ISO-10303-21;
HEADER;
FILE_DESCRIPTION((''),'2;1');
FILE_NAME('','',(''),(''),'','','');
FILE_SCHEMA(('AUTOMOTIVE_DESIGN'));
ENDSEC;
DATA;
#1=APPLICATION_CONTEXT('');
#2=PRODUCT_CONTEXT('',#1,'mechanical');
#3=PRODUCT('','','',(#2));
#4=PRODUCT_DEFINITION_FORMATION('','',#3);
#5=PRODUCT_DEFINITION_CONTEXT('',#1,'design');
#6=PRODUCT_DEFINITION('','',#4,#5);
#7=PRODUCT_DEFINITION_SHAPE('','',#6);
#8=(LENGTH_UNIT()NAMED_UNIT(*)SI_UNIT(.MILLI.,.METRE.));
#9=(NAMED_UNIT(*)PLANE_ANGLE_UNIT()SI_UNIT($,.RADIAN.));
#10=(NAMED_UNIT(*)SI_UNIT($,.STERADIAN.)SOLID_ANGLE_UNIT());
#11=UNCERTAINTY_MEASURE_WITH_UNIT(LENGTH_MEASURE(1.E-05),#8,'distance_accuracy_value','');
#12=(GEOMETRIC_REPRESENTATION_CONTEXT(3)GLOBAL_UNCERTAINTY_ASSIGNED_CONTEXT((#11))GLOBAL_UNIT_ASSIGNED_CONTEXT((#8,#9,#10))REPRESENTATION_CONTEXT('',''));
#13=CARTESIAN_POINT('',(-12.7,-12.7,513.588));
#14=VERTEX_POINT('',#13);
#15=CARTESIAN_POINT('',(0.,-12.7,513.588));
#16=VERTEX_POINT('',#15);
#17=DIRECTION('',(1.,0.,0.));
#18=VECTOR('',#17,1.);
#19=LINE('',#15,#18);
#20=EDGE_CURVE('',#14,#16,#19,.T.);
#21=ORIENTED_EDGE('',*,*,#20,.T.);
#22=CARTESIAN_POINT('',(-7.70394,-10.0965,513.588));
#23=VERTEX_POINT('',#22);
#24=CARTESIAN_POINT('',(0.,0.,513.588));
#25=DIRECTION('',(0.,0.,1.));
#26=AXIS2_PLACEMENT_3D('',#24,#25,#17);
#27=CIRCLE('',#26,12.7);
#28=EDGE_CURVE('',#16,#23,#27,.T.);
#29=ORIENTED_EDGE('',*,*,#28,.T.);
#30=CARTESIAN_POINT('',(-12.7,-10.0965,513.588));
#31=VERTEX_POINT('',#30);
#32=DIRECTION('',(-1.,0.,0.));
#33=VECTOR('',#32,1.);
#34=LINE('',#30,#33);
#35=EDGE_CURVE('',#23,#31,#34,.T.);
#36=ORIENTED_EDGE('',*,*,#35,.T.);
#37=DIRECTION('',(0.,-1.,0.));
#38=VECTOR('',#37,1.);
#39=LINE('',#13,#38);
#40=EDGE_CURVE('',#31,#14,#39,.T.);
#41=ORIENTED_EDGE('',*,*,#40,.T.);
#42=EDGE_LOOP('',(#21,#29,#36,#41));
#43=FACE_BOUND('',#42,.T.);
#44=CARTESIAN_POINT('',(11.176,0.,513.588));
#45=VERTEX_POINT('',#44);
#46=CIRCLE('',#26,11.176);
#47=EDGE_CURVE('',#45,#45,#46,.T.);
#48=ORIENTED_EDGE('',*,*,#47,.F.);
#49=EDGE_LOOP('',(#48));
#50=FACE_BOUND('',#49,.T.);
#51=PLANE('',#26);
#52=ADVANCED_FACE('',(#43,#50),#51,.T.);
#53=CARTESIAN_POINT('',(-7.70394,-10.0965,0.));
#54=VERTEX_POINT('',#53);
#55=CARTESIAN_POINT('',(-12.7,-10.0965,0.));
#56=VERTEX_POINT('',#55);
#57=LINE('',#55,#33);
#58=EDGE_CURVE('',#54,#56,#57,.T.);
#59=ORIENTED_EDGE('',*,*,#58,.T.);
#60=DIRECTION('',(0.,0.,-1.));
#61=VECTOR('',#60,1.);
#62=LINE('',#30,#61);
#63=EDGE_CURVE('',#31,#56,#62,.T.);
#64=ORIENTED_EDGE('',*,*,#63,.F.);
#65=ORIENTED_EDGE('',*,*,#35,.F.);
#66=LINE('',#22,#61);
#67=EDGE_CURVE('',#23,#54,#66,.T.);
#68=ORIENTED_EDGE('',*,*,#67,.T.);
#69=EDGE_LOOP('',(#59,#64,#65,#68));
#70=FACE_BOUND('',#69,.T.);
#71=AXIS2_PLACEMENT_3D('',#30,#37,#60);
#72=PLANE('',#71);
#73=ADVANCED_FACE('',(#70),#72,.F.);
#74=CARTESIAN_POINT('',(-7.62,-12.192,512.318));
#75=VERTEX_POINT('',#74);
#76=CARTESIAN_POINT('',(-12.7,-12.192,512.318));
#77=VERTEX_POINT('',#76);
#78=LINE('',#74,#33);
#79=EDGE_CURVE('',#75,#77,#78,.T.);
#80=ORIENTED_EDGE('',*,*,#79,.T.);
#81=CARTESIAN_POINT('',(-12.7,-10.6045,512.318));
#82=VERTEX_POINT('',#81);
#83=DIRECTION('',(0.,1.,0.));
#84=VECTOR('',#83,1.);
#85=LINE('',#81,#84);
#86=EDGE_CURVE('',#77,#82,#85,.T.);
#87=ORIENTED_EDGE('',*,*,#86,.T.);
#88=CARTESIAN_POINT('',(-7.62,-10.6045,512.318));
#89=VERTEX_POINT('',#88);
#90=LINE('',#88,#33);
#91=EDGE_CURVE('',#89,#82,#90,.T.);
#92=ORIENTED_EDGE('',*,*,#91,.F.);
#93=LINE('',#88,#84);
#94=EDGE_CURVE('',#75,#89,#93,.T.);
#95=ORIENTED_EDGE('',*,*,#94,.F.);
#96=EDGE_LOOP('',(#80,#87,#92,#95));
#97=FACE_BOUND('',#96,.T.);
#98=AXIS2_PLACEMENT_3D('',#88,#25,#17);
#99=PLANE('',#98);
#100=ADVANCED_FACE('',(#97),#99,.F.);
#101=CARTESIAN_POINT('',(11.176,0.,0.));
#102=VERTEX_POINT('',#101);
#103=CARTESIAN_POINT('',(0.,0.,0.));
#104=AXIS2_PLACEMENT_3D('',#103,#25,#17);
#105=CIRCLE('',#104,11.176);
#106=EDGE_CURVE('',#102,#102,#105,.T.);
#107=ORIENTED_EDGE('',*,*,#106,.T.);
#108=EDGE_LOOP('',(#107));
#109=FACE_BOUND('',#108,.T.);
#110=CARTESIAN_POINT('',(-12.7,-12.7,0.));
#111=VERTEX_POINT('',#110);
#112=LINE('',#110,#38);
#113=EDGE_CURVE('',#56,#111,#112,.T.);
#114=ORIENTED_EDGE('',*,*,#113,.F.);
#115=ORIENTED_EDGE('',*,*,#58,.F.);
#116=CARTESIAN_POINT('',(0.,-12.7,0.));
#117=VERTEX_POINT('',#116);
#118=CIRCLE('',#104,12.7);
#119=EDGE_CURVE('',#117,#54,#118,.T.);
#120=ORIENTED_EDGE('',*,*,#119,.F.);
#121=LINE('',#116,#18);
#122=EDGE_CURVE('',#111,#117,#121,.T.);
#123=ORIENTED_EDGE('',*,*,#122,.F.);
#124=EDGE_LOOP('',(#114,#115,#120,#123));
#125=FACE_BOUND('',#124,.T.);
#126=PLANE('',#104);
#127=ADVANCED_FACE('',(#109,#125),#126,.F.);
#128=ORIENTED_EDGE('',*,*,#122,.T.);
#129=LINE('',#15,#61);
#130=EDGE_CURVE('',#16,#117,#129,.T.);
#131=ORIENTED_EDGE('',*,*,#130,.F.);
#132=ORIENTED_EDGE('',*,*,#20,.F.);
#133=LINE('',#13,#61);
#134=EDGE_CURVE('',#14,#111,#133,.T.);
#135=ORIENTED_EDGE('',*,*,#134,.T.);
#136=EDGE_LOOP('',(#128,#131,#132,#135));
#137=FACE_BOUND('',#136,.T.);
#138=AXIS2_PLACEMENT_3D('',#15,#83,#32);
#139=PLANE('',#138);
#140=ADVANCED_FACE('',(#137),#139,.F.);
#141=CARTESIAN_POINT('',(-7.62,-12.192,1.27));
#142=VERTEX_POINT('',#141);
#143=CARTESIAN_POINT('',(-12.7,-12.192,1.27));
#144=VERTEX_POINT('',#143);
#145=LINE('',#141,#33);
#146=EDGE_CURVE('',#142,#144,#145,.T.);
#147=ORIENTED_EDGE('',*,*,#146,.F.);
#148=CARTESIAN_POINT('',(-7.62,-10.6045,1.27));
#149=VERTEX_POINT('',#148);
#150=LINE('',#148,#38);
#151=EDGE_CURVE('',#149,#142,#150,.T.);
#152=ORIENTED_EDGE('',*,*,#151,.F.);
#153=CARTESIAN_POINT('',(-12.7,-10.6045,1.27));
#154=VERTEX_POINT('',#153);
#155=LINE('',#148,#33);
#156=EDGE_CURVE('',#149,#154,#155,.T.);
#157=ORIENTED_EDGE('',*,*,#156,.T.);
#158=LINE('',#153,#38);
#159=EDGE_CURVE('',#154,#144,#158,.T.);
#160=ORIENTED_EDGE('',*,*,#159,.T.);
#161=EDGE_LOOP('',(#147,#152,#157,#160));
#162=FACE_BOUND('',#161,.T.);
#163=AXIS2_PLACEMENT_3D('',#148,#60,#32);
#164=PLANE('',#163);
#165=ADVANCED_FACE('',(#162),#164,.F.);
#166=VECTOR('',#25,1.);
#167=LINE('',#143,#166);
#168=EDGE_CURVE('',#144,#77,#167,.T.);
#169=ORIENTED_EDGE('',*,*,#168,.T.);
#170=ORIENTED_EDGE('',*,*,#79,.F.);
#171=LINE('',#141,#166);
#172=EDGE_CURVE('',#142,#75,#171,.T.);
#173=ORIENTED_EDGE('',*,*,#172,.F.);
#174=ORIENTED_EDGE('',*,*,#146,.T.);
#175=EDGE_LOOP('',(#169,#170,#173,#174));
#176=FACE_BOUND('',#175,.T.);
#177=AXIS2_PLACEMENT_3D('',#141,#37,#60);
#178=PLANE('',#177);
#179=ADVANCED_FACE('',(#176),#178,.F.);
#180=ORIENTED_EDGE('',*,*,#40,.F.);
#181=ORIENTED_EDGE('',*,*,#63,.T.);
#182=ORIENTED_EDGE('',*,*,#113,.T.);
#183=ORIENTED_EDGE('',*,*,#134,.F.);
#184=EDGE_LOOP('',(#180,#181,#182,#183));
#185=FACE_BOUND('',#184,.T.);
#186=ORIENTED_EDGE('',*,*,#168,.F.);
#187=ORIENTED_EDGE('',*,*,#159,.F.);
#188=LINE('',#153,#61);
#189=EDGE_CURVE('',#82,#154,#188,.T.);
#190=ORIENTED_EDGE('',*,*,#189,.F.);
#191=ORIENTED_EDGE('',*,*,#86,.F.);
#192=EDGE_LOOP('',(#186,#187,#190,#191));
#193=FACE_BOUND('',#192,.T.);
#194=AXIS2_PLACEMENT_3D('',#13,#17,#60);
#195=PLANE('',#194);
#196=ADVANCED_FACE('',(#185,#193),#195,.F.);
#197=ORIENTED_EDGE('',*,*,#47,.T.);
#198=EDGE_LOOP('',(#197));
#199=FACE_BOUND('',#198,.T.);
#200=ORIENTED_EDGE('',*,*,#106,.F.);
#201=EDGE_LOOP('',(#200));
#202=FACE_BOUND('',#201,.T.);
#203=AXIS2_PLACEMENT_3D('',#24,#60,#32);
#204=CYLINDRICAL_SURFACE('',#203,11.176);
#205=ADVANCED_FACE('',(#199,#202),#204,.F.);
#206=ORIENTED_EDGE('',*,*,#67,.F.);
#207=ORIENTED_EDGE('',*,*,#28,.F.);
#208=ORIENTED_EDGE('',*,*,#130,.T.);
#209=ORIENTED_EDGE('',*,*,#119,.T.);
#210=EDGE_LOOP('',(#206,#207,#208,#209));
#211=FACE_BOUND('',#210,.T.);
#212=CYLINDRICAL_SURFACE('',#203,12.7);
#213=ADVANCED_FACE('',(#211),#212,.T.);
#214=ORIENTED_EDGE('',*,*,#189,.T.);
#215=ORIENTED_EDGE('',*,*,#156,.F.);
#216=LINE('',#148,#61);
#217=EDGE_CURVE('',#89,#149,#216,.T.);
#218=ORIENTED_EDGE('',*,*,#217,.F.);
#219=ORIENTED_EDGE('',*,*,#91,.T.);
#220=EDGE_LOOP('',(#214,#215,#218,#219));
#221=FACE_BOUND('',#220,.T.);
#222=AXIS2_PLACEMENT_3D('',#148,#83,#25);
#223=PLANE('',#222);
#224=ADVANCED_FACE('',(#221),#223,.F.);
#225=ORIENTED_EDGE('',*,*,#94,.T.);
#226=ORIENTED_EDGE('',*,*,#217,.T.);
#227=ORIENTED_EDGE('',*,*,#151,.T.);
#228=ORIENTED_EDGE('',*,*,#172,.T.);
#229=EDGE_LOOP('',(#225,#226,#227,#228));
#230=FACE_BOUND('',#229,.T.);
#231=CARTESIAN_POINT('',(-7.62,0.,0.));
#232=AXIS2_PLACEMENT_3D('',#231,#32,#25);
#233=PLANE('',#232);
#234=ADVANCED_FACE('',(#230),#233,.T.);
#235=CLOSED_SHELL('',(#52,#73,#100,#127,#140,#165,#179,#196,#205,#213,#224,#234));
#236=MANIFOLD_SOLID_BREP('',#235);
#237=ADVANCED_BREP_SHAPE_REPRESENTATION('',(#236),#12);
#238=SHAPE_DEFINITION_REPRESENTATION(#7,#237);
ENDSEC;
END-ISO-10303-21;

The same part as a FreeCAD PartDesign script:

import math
import FreeCAD as App
import Part
import Sketcher
from FreeCAD import Vector
Q = App.Units.Quantity


def add_polygon(sketch, points):
    """Adds a closed chain of lines whose ends are joined by coincident constraints."""
    first, n = sketch.GeometryCount, len(points)
    for a, b in zip(points, points[1:] + points[:1]):
        sketch.addGeometry(Part.LineSegment(App.Vector(*a, 0), App.Vector(*b, 0)), False)
    for i in range(n):
        sketch.addConstraint(Sketcher.Constraint("Coincident", first + i, 2, first + (i + 1) % n, 1))

doc = App.newDocument("Part")
body = doc.addObject("PartDesign::Body", "Body")

# Sketch on XY plane
sketch1 = doc.addObject("Sketcher::SketchObject", "Sketch")
body.addObject(sketch1)
sketch1.AttachmentSupport = (doc.XY_Plane, [""])
sketch1.MapMode = "FlatFace"
sketch1.addGeometry([
    Part.LineSegment(Vector(-12.7, -12.7, 0), Vector(0, -12.7, 0)),  # 0
    Part.ArcOfCircle(Part.Circle(Vector(0, 0, 0), Vector(0, 0, 1), 12.7), math.radians(-90), math.radians(233)),  # 1
    Part.LineSegment(Vector(-7.7, -10.1, 0), Vector(-12.7, -10.1, 0)),  # 2
    Part.LineSegment(Vector(-12.7, -10.1, 0), Vector(-12.7, -12.7, 0)),  # 3
    Part.Circle(Vector(0, 0, 0), Vector(0, 0, 1), 11.2),  # 4
], False)
sketch1.addConstraint([
    Sketcher.Constraint("Tangent", 0, 2, 1, 1),
    Sketcher.Constraint("Coincident", 1, 2, 2, 1),
    Sketcher.Constraint("Coincident", 2, 2, 3, 1),
    Sketcher.Constraint("Coincident", 3, 2, 0, 1),
    Sketcher.Constraint("Horizontal", 0),
    Sketcher.Constraint("Horizontal", 2),
    Sketcher.Constraint("Vertical", 3),
    Sketcher.Constraint("Coincident", 1, 3, -1, 1),
    Sketcher.Constraint("Coincident", 4, 3, -1, 1),
    Sketcher.Constraint("Radius", 1, Q("0.5 in")),
    Sketcher.Constraint("Diameter", 4, Q("0.88 in")),
    Sketcher.Constraint("DistanceX", 0, 1, 0, 2, Q("0.5 in")),
    Sketcher.Constraint("DistanceY", 3, 2, 3, 1, Q("0.1025 in")),
])
pad1 = doc.addObject("PartDesign::Pad", "Pad")
body.addObject(pad1)
pad1.Profile = sketch1
pad1.Length = Q("20.22 in")

# Sketch on YZ plane
sketch2 = doc.addObject("Sketcher::SketchObject", "Sketch001")
body.addObject(sketch2)
sketch2.AttachmentSupport = (doc.YZ_Plane, [""])
sketch2.MapMode = "FlatFace"
sketch2.AttachmentOffset = App.Placement(Vector(0, 0, -0.5 * 25.4), App.Rotation())
add_polygon(sketch2, [(-10.6, 1.3), (-12.2, 1.3), (-12.2, 512.3), (-10.6, 512.3)])  # lines 0-3
sketch2.addConstraint([
    Sketcher.Constraint("Horizontal", 0),
    Sketcher.Constraint("Vertical", 1),
    Sketcher.Constraint("Horizontal", 2),
    Sketcher.Constraint("Vertical", 3),
    Sketcher.Constraint("DistanceY", 1, 1, 1, 2, Q("20.12 in")),
    Sketcher.Constraint("DistanceX", 0, 2, 0, 1, Q("0.0625 in")),
    Sketcher.Constraint("DistanceX", 0, 2, -1, 1, Q("0.48 in")),
    Sketcher.Constraint("DistanceY", -1, 1, 0, 2, Q("0.05 in")),
])
pocket1 = doc.addObject("PartDesign::Pocket", "Pocket")
body.addObject(pocket1)
pocket1.Profile = sketch2
pocket1.Length = Q("0.2 in")
pocket1.Reversed = True

doc.recompute()
